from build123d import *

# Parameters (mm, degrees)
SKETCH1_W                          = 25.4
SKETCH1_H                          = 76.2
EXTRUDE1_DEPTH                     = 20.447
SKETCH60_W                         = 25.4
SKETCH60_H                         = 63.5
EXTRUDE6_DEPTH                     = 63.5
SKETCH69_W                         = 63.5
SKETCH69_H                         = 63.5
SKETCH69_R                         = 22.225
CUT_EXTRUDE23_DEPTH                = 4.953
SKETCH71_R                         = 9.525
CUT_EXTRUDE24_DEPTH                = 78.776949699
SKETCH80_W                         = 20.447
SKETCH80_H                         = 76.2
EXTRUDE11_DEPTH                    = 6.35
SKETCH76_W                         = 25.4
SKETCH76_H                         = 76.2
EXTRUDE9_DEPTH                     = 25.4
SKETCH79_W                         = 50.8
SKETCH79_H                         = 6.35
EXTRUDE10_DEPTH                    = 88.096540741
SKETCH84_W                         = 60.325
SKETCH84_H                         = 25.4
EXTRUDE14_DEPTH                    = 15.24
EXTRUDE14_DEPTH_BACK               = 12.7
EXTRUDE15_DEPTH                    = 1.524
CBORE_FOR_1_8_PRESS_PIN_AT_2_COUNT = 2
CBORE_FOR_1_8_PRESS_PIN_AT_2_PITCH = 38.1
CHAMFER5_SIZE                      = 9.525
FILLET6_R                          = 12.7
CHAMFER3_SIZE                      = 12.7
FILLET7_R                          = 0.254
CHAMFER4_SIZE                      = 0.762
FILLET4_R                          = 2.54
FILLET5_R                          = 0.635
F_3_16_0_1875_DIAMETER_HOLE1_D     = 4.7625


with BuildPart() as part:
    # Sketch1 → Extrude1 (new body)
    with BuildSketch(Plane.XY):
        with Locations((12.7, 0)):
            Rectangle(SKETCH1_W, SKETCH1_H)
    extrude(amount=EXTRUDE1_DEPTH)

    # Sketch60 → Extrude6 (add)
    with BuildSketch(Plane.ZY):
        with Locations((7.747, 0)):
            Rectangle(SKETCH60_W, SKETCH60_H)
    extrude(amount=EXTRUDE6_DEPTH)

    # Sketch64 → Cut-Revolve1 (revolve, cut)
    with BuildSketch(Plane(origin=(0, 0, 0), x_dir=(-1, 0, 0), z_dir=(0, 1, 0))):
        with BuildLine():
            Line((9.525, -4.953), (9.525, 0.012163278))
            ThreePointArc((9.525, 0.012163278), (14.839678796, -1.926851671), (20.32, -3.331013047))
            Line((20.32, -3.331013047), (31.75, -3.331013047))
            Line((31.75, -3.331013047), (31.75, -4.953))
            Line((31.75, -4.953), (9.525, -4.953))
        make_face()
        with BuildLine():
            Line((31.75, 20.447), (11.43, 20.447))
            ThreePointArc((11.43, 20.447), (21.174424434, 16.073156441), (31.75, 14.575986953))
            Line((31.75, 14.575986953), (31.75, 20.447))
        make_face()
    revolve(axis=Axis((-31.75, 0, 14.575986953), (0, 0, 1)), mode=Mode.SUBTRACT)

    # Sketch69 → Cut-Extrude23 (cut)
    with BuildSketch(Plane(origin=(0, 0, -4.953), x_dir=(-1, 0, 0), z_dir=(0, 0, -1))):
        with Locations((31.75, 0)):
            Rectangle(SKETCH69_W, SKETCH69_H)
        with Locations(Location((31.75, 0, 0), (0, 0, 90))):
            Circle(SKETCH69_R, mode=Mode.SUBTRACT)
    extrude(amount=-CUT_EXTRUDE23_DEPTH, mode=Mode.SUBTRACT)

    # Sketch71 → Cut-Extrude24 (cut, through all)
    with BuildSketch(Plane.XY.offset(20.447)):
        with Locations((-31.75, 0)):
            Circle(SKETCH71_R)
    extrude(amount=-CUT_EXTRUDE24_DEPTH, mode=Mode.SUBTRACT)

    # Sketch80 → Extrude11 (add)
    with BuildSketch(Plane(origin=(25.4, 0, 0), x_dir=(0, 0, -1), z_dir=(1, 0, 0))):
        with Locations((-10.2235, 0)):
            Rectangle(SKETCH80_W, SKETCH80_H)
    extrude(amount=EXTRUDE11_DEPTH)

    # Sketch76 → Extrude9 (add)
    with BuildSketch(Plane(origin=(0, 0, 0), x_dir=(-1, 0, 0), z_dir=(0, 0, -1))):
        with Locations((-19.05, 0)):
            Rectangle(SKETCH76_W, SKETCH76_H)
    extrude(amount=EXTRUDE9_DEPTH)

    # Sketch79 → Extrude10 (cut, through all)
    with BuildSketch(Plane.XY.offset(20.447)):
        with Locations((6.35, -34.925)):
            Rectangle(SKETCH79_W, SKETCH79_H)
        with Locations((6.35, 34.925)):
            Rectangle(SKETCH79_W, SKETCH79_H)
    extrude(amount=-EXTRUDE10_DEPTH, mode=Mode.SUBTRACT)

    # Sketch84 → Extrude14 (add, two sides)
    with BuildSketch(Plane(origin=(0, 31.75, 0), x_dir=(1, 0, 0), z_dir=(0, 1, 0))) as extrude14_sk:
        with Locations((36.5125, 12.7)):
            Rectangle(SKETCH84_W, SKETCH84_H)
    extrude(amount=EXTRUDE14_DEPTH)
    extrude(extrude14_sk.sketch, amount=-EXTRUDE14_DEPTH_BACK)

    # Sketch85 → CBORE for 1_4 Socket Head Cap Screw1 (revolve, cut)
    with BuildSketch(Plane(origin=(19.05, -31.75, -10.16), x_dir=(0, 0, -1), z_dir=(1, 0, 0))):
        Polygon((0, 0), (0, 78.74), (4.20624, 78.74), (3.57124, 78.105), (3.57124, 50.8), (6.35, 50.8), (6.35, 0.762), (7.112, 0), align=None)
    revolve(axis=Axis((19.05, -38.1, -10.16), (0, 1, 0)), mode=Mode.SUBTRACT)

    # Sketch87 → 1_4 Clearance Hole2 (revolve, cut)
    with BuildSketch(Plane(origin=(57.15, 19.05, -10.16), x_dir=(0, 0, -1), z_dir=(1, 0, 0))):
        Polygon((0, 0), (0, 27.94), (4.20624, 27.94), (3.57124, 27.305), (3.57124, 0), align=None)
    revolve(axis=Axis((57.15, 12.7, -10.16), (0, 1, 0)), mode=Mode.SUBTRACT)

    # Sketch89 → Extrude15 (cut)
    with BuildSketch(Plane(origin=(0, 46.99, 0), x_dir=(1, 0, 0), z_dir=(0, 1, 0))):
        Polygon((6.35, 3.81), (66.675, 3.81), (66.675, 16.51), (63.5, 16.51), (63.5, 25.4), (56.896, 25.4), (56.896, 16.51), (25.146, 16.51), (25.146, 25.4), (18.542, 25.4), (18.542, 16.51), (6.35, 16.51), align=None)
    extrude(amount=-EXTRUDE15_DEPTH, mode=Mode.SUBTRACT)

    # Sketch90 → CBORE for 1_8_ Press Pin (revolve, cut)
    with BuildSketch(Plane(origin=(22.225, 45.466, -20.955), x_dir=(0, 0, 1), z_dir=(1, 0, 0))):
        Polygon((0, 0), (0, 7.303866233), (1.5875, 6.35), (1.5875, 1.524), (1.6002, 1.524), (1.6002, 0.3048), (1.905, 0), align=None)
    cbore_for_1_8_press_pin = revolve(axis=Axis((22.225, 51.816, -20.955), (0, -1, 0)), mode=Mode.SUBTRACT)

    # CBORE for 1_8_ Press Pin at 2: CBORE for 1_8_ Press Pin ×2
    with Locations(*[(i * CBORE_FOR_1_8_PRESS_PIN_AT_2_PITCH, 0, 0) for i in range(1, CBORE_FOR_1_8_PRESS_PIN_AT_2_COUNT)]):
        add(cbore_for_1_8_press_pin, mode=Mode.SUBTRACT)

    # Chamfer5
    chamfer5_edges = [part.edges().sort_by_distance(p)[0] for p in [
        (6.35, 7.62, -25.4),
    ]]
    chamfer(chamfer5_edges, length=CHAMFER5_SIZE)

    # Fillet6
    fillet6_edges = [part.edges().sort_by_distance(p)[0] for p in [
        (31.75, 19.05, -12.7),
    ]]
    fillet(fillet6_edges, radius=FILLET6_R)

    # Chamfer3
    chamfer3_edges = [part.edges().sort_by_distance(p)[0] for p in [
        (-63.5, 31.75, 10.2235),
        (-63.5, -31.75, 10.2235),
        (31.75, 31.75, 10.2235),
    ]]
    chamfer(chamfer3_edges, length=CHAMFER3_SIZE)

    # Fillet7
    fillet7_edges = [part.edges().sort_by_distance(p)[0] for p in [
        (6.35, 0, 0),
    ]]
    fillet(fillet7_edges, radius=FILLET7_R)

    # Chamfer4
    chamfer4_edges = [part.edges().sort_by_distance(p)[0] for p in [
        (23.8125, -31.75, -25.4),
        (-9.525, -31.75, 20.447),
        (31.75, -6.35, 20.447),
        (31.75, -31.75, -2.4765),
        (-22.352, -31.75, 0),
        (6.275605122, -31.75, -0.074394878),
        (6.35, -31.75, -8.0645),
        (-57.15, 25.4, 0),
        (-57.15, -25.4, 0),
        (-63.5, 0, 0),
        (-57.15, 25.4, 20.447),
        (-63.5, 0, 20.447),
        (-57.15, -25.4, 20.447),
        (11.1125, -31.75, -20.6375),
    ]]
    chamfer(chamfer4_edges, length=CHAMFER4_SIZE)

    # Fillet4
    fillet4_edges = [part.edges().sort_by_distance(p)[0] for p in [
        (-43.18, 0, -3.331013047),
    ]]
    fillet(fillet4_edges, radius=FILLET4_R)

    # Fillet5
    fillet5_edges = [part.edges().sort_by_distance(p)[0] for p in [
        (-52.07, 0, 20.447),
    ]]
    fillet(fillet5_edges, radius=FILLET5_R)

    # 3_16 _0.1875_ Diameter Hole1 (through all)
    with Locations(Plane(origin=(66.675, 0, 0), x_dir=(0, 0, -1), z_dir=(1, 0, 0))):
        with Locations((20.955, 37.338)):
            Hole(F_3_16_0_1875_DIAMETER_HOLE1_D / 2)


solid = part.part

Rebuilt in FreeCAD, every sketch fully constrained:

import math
import FreeCAD as App
import Part
import Sketcher
from FreeCAD import Vector
Q = App.Units.Quantity


def edges_at(feature, points):
    """Names of the edges that pass closest to the given points."""
    edges = feature.Shape.Edges
    near = lambda p: min(range(len(edges)), key=lambda i: edges[i].distToShape(Part.Vertex(*p))[0])
    return sorted({f"Edge{near(p) + 1}" for p in points})


def add_polygon(sketch, points):
    """Adds a closed chain of lines whose ends are joined by coincident constraints."""
    first, n = sketch.GeometryCount, len(points)
    for a, b in zip(points, points[1:] + points[:1]):
        sketch.addGeometry(Part.LineSegment(App.Vector(*a, 0), App.Vector(*b, 0)), False)
    for i in range(n):
        sketch.addConstraint(Sketcher.Constraint("Coincident", first + i, 2, first + (i + 1) % n, 1))

doc = App.newDocument("Part")
body = doc.addObject("PartDesign::Body", "Body")

sketch1 = body.newObject("Sketcher::SketchObject", "Sketch")
sketch1.AttachmentSupport = (doc.getObject("XY_Plane"), [""])
sketch1.MapMode = "FlatFace"
add_polygon(sketch1, [(0, 38), (0, -38), (25, -38), (25, 38)])
sketch1.addConstraint([
    Sketcher.Constraint("Vertical", 0),
    Sketcher.Constraint("Horizontal", 1),
    Sketcher.Constraint("Vertical", 2),
    Sketcher.Constraint("Horizontal", 3),
    Sketcher.Constraint("Symmetric", 0, 2, 3, 2, -1, 1),
    Sketcher.Constraint("DistanceX", 1, 1, 1, 2, Q("1 in")),
    Sketcher.Constraint("DistanceY", 0, 2, 0, 1, Q("3 in")),
])
pad1 = body.newObject("PartDesign::Pad", "Pad")
pad1.Profile = sketch1
pad1.Length = Q("0.805 in")

sketch2 = body.newObject("Sketcher::SketchObject", "Sketch001")
sketch2.AttachmentSupport = (doc.getObject("YZ_Plane"), [""])
sketch2.MapMode = "FlatFace"
add_polygon(sketch2, [(32, -5), (-32, -5), (-32, 20), (32, 20)])
sketch2.addConstraint([
    Sketcher.Constraint("Horizontal", 0),
    Sketcher.Constraint("Vertical", 1),
    Sketcher.Constraint("Horizontal", 2),
    Sketcher.Constraint("Vertical", 3),
    Sketcher.Constraint("DistanceY", 1, 1, 1, 2, Q("1 in")),
    Sketcher.Constraint("DistanceX", 0, 2, 0, 1, Q("2.5 in")),
    Sketcher.Constraint("DistanceX", 0, 2, -1, 1, Q("1.25 in")),
    Sketcher.Constraint("DistanceY", 0, 2, -1, 1, Q("0.195 in")),
])
pad2 = body.newObject("PartDesign::Pad", "Pad001")
pad2.Profile = sketch2
pad2.Length = Q("2.5 in")
pad2.Reversed = True

sketch3 = body.newObject("Sketcher::SketchObject", "Sketch002")
sketch3.AttachmentSupport = (doc.getObject("XZ_Plane"), [""])
sketch3.MapMode = "FlatFace"
sketch3.addGeometry([
    Part.LineSegment(Vector(-9.5, 0, 0), Vector(-9.5, -5, 0)),
    Part.LineSegment(Vector(-9.5, -5, 0), Vector(-31.8, -5, 0)),
    Part.LineSegment(Vector(-31.8, -5, 0), Vector(-31.8, -3.3, 0)),
    Part.LineSegment(Vector(-31.8, -3.3, 0), Vector(-20.3, -3.3, 0)),
    Part.ArcOfCircle(Part.Circle(Vector(-31.8, 52.7, 0), Vector(0, 0, 1), 57.2), math.radians(-78.47), math.radians(-67.12)),
    Part.LineSegment(Vector(-31.8, 20.4, 0), Vector(-11.4, 20.4, 0)),
    Part.ArcOfCircle(Part.Circle(Vector(-31.7, 52.7, 0), Vector(0, 0, 1), 38.1), math.radians(-90), math.radians(-58)),
    Part.LineSegment(Vector(-31.8, 14.6, 0), Vector(-31.8, 20.4, 0)),
], False)
sketch3.addGeometry(Part.LineSegment(Vector(-31.8, -5, 0), Vector(-31.8, 52.7, 0)), True)
sketch3.addConstraint([
    Sketcher.Constraint("Coincident", 0, 2, 1, 1),
    Sketcher.Constraint("Coincident", 1, 2, 2, 1),
    Sketcher.Constraint("Coincident", 2, 2, 3, 1),
    Sketcher.Constraint("Coincident", 3, 2, 4, 1),
    Sketcher.Constraint("Coincident", 4, 2, 0, 1),
    Sketcher.Constraint("Coincident", 5, 2, 6, 2),
    Sketcher.Constraint("Coincident", 6, 1, 7, 1),
    Sketcher.Constraint("Coincident", 7, 2, 5, 1),
    Sketcher.Constraint("Vertical", 0),
    Sketcher.Constraint("Horizontal", 1),
    Sketcher.Constraint("Vertical", 2),
    Sketcher.Constraint("Horizontal", 3),
    Sketcher.Constraint("Horizontal", 5),
    Sketcher.Constraint("Vertical", 7),
    Sketcher.Constraint("Vertical", 8),
    Sketcher.Constraint("Coincident", 6, 3, 4, 3),
    Sketcher.Constraint("Coincident", 8, 1, 1, 2),
    Sketcher.Constraint("Coincident", 8, 2, 4, 3),
    Sketcher.Constraint("Vertical", 2, 2, 6, 1),
    Sketcher.Constraint("Radius", 6, Q("1.5 in")),
    Sketcher.Constraint("DistanceX", 5, 1, 5, 2, Q("0.8 in")),
    Sketcher.Constraint("DistanceY", 0, 2, 5, 2, Q("1 in")),
    Sketcher.Constraint("DistanceX", 3, 1, 3, 2, Q("0.45 in")),
    Sketcher.Constraint("DistanceX", 3, 2, -1, 1, Q("0.8 in")),
    Sketcher.Constraint("DistanceX", 1, 2, 1, 1, Q("0.875 in")),
    Sketcher.Constraint("DistanceY", 0, 2, -1, 1, Q("0.195 in")),
    Sketcher.Constraint("Radius", 4, Q("57.161429 mm")),
])
groove = body.newObject("PartDesign::Groove", "Groove")
groove.Profile = sketch3
groove.ReferenceAxis = (sketch3, ["Axis0"])
groove.Angle = 360

sketch4 = body.newObject("Sketcher::SketchObject", "Sketch003")
sketch4.AttachmentSupport = (doc.getObject("XY_Plane"), [""])
sketch4.MapMode = "FlatFace"
sketch4.AttachmentOffset = App.Placement(Vector(0, 0, -0.195 * 25.4), App.Rotation())
add_polygon(sketch4, [(0, 32), (0, -32), (-64, -32), (-64, 32)])
sketch4.addGeometry(Part.Circle(Vector(-32, 0, 0), Vector(0, 0, 1), 22), False)
sketch4.addConstraint([
    Sketcher.Constraint("Vertical", 0),
    Sketcher.Constraint("Horizontal", 1),
    Sketcher.Constraint("Vertical", 2),
    Sketcher.Constraint("Horizontal", 3),
    Sketcher.Constraint("Symmetric", 0, 2, 3, 2, -1, 1),
    Sketcher.Constraint("PointOnObject", 4, 3, -1),
    Sketcher.Constraint("Equal", 3, 0),
    Sketcher.Constraint("Diameter", 4, Q("1.75 in")),
    Sketcher.Constraint("DistanceX", 1, 2, 1, 1, Q("2.5 in")),
    Sketcher.Constraint("DistanceX", 4, 3, -1, 1, Q("1.25 in")),
])
pocket1 = body.newObject("PartDesign::Pocket", "Pocket")
pocket1.Profile = sketch4
pocket1.Length = Q("0.195 in")
pocket1.Reversed = True

sketch5 = body.newObject("Sketcher::SketchObject", "Sketch004")
sketch5.AttachmentSupport = (doc.getObject("XY_Plane"), [""])
sketch5.MapMode = "FlatFace"
sketch5.AttachmentOffset = App.Placement(Vector(0, 0, 0.805 * 25.4), App.Rotation())
sketch5.addGeometry(Part.Circle(Vector(-32, 0, 0), Vector(0, 0, 1), 10), False)
sketch5.addConstraint([
    Sketcher.Constraint("PointOnObject", 0, 3, -1),
    Sketcher.Constraint("Diameter", 0, Q("0.75 in")),
    Sketcher.Constraint("DistanceX", 0, 3, -1, 1, Q("1.25 in")),
])
pocket2 = body.newObject("PartDesign::Pocket", "Pocket001")
pocket2.Profile = sketch5
pocket2.Type = "ThroughAll"

sketch6 = body.newObject("Sketcher::SketchObject", "Sketch005")
sketch6.AttachmentSupport = (doc.getObject("YZ_Plane"), [""])
sketch6.MapMode = "FlatFace"
sketch6.AttachmentOffset = App.Placement(Vector(0, 0, 1 * 25.4), App.Rotation())
add_polygon(sketch6, [(38, 20), (-38, 20), (-38, 0), (38, 0)])
sketch6.addConstraint([
    Sketcher.Constraint("Horizontal", 0),
    Sketcher.Constraint("Vertical", 1),
    Sketcher.Constraint("Horizontal", 2),
    Sketcher.Constraint("Vertical", 3),
    Sketcher.Constraint("Symmetric", 1, 2, 2, 2, -1, 1),
    Sketcher.Constraint("DistanceX", 0, 2, 0, 1, Q("3 in")),
    Sketcher.Constraint("DistanceY", 1, 2, 1, 1, Q("0.805 in")),
])
pad3 = body.newObject("PartDesign::Pad", "Pad002")
pad3.Profile = sketch6
pad3.Length = Q("0.25 in")

sketch7 = body.newObject("Sketcher::SketchObject", "Sketch006")
sketch7.AttachmentSupport = (doc.getObject("XY_Plane"), [""])
sketch7.MapMode = "FlatFace"
add_polygon(sketch7, [(32, 38), (32, -38), (6, -38), (6, 38)])
sketch7.addConstraint([
    Sketcher.Constraint("Vertical", 0),
    Sketcher.Constraint("Horizontal", 1),
    Sketcher.Constraint("Vertical", 2),
    Sketcher.Constraint("Horizontal", 3),
    Sketcher.Constraint("DistanceX", 1, 2, 1, 1, Q("1 in")),
    Sketcher.Constraint("DistanceY", 0, 2, 0, 1, Q("3 in")),
    Sketcher.Constraint("DistanceY", 0, 2, -1, 1, Q("1.5 in")),
    Sketcher.Constraint("DistanceX", -1, 1, 0, 2, Q("1.25 in")),
])
pad4 = body.newObject("PartDesign::Pad", "Pad003")
pad4.Profile = sketch7
pad4.Length = Q("1 in")
pad4.Reversed = True

sketch8 = body.newObject("Sketcher::SketchObject", "Sketch007")
sketch8.AttachmentSupport = (doc.getObject("XY_Plane"), [""])
sketch8.MapMode = "FlatFace"
sketch8.AttachmentOffset = App.Placement(Vector(0, 0, 0.805 * 25.4), App.Rotation())
add_polygon(sketch8, [(-19, -32), (-19, -38), (32, -38), (32, -32)])
add_polygon(sketch8, [(-19, 38), (-19, 32), (32, 32), (32, 38)])
sketch8.addConstraint([
    Sketcher.Constraint("Vertical", 0),
    Sketcher.Constraint("Horizontal", 1),
    Sketcher.Constraint("Vertical", 2),
    Sketcher.Constraint("Horizontal", 3),
    Sketcher.Constraint("Vertical", 4),
    Sketcher.Constraint("Horizontal", 5),
    Sketcher.Constraint("Vertical", 6),
    Sketcher.Constraint("Horizontal", 7),
    Sketcher.Constraint("Symmetric", 3, 2, 4, 2, -1),
    Sketcher.Constraint("Symmetric", 1, 2, 6, 2, -1),
    Sketcher.Constraint("DistanceX", 1, 1, 1, 2, Q("2 in")),
    Sketcher.Constraint("DistanceY", 1, 2, 6, 2, Q("3 in")),
    Sketcher.Constraint("DistanceY", 0, 2, 0, 1, Q("0.25 in")),
    Sketcher.Constraint("DistanceX", 0, 2, -1, 1, Q("0.75 in")),
])
pocket3 = body.newObject("PartDesign::Pocket", "Pocket002")
pocket3.Profile = sketch8
pocket3.Type = "ThroughAll"

sketch9 = body.newObject("Sketcher::SketchObject", "Sketch008")
sketch9.AttachmentSupport = (doc.getObject("XZ_Plane"), [""])
sketch9.MapMode = "FlatFace"
sketch9.AttachmentOffset = App.Placement(Vector(0, 0, -1.25 * 25.4), App.Rotation())
add_polygon(sketch9, [(6, -25), (6, 0), (67, 0), (67, -25)])
sketch9.addConstraint([
    Sketcher.Constraint("Vertical", 0),
    Sketcher.Constraint("Horizontal", 1),
    Sketcher.Constraint("Vertical", 2),
    Sketcher.Constraint("Horizontal", 3),
    Sketcher.Constraint("PointOnObject", 0, 2, -1),
    Sketcher.Constraint("DistanceY", 0, 1, 0, 2, Q("1 in")),
    Sketcher.Constraint("DistanceX", 1, 1, 1, 2, Q("2.375 in")),
    Sketcher.Constraint("DistanceX", -1, 1, 0, 2, Q("0.25 in")),
])
pad5 = body.newObject("PartDesign::Pad", "Pad004")
pad5.Profile = sketch9
pad5.Type = "TwoLengths"
pad5.Length = Q("0.6 in")
pad5.Length2 = Q("0.5 in")
pad5.Reversed = True

sketch10 = body.newObject("Sketcher::SketchObject", "Sketch009")
sketch10.AttachmentSupport = (doc.getObject("YZ_Plane"), [""])
sketch10.MapMode = "FlatFace"
sketch10.AttachmentOffset = App.Placement(Vector(0, 0, 0.75 * 25.4), App.Rotation())
add_polygon(sketch10, [(47, -10.2), (-31.8, -10.2), (-31.8, -17.3), (-31, -16.5), (19.1, -16.5), (19.1, -13.7), (46.4, -13.7), (47, -14.4)])
sketch10.addGeometry(Part.LineSegment(Vector(-31.8, -10.2, 0), Vector(47, -10.2, 0)), True)
sketch10.addConstraint([
    Sketcher.Constraint("Horizontal", 0),
    Sketcher.Constraint("Vertical", 1),
    Sketcher.Constraint("Horizontal", 3),
    Sketcher.Constraint("Vertical", 4),
    Sketcher.Constraint("Horizontal", 5),
    Sketcher.Constraint("Vertical", 7),
    Sketcher.Constraint("Horizontal", 8),
    Sketcher.Constraint("Coincident", 8, 1, 0, 2),
    Sketcher.Constraint("Perpendicular", 2, 6),
    Sketcher.Constraint("Vertical", 6, 2, 8, 2),
    Sketcher.Constraint("DistanceX", 0, 2, 0, 1, Q("3.1 in")),
    Sketcher.Constraint("Angle", 2, Q("45 deg")),
    Sketcher.Constraint("DistanceX", 1, 2, 3, 2, Q("2 in")),
    Sketcher.Constraint("DistanceX", 3, 1, 3, 2, Q("1.97 in")),
    Sketcher.Constraint("DistanceY", 1, 2, 1, 1, Q("0.28 in")),
    Sketcher.Constraint("DistanceY", 0, 2, -1, 1, Q("0.4 in")),
    Sketcher.Constraint("DistanceX", 5, 1, 5, 2, Q("1.075 in")),
    Sketcher.Constraint("DistanceX", 0, 2, -1, 1, Q("1.25 in")),
    Sketcher.Constraint("DistanceY", 4, 1, 4, 2, Q("0.1094 in")),
])
groove2 = body.newObject("PartDesign::Groove", "Groove001")
groove2.Profile = sketch10
groove2.ReferenceAxis = (sketch10, ["Axis0"])
groove2.Angle = 360

sketch11 = body.newObject("Sketcher::SketchObject", "Sketch010")
sketch11.AttachmentSupport = (doc.getObject("YZ_Plane"), [""])
sketch11.MapMode = "FlatFace"
sketch11.AttachmentOffset = App.Placement(Vector(0, 0, 2.25 * 25.4), App.Rotation())
add_polygon(sketch11, [(47, -10.2), (19.1, -10.2), (19.1, -13.7), (46.4, -13.7), (47, -14.4)])
sketch11.addGeometry(Part.LineSegment(Vector(19.1, -10.2, 0), Vector(47, -10.2, 0)), True)
sketch11.addConstraint([
    Sketcher.Constraint("Horizontal", 0),
    Sketcher.Constraint("Vertical", 1),
    Sketcher.Constraint("Horizontal", 2),
    Sketcher.Constraint("Vertical", 4),
    Sketcher.Constraint("Horizontal", 5),
    Sketcher.Constraint("Coincident", 5, 1, 0, 2),
    Sketcher.Constraint("Vertical", 3, 2, 5, 2),
    Sketcher.Constraint("DistanceX", 0, 2, 0, 1, Q("1.1 in")),
    Sketcher.Constraint("Angle", 3, Q("-45 deg")),
    Sketcher.Constraint("DistanceY", 0, 2, -1, 1, Q("0.4 in")),
    Sketcher.Constraint("DistanceX", 2, 1, 2, 2, Q("1.075 in")),
    Sketcher.Constraint("DistanceX", -1, 1, 0, 2, Q("0.75 in")),
    Sketcher.Constraint("DistanceY", 1, 2, 1, 1, Q("0.1406 in")),
])
groove3 = body.newObject("PartDesign::Groove", "Groove002")
groove3.Profile = sketch11
groove3.ReferenceAxis = (sketch11, ["Axis0"])
groove3.Angle = 360

sketch12 = body.newObject("Sketcher::SketchObject", "Sketch011")
sketch12.AttachmentSupport = (doc.getObject("XZ_Plane"), [""])
sketch12.MapMode = "FlatFace"
sketch12.AttachmentOffset = App.Placement(Vector(0, 0, -1.85 * 25.4), App.Rotation())
add_polygon(sketch12, [(6.3, -3.8), (66.7, -3.8), (66.7, -16.5), (63.5, -16.5), (63.5, -25.4), (56.9, -25.4), (56.9, -16.5), (25.1, -16.5), (25.1, -25.4), (18.5, -25.4), (18.5, -16.5), (6.3, -16.5)])
sketch12.addConstraint([
    Sketcher.Constraint("Horizontal", 0),
    Sketcher.Constraint("Vertical", 1),
    Sketcher.Constraint("Horizontal", 2),
    Sketcher.Constraint("Vertical", 3),
    Sketcher.Constraint("Horizontal", 4),
    Sketcher.Constraint("Vertical", 5),
    Sketcher.Constraint("Horizontal", 6),
    Sketcher.Constraint("Vertical", 7),
    Sketcher.Constraint("Horizontal", 8),
    Sketcher.Constraint("Vertical", 9),
    Sketcher.Constraint("Horizontal", 10),
    Sketcher.Constraint("Vertical", 11),
    Sketcher.Constraint("Horizontal", 2, 2, 5, 2),
    Sketcher.Constraint("Horizontal", 4, 2, 7, 2),
    Sketcher.Constraint("Horizontal", 6, 2, 9, 2),
    Sketcher.Constraint("Equal", 4, 8),
    Sketcher.Constraint("DistanceY", 1, 2, 1, 1, Q("0.5 in")),
    Sketcher.Constraint("DistanceY", 3, 2, -1, 1, Q("1 in")),
    Sketcher.Constraint("DistanceX", 4, 2, 4, 1, Q("0.26 in")),
    Sketcher.Constraint("DistanceX", 6, 2, 6, 1, Q("1.25 in")),
    Sketcher.Constraint("DistanceX", 10, 2, 10, 1, Q("0.48 in")),
    Sketcher.Constraint("DistanceY", 3, 2, 3, 1, Q("0.35 in")),
    Sketcher.Constraint("DistanceX", -1, 1, 2, 2, Q("2.5 in")),
    Sketcher.Constraint("DistanceX", 0, 1, 0, 2, Q("2.375 in")),
])
pocket4 = body.newObject("PartDesign::Pocket", "Pocket003")
pocket4.Profile = sketch12
pocket4.Length = Q("0.06 in")
pocket4.Reversed = True

sketch13 = body.newObject("Sketcher::SketchObject", "Sketch012")
sketch13.AttachmentSupport = (doc.getObject("YZ_Plane"), [""])
sketch13.MapMode = "FlatFace"
sketch13.AttachmentOffset = App.Placement(Vector(0, 0, 0.875 * 25.4), App.Rotation())
add_polygon(sketch13, [(38.162, -20.955), (45.466, -20.955), (45.466, -19.05), (45.161, -19.355), (43.942, -19.355), (43.942, -19.367), (39.116, -19.367)])
sketch13.addGeometry(Part.LineSegment(Vector(45.466, -20.955, 0), Vector(38.162, -20.955, 0)), True)
sketch13.addConstraint([
    Sketcher.Constraint("Horizontal", 0),
    Sketcher.Constraint("Vertical", 1),
    Sketcher.Constraint("Horizontal", 3),
    Sketcher.Constraint("Vertical", 4),
    Sketcher.Constraint("Horizontal", 5),
    Sketcher.Constraint("Horizontal", 7),
    Sketcher.Constraint("Coincident", 7, 1, 0, 2),
    Sketcher.Constraint("Equal", 0, 7),
    Sketcher.Constraint("Angle", 2, Q("-135 deg")),
    Sketcher.Constraint("Angle", 6, Q("-121 deg")),
    Sketcher.Constraint("DistanceX", 5, 2, 5, 1, Q("0.19 in")),
    Sketcher.Constraint("DistanceX", 3, 2, 3, 1, Q("0.048 in")),
    Sketcher.Constraint("DistanceY", 1, 1, 1, 2, Q("0.075 in")),
    Sketcher.Constraint("DistanceX", -1, 1, 0, 2, Q("1.79 in")),
    Sketcher.Constraint("DistanceY", 1, 2, -1, 1, Q("0.75 in")),
    Sketcher.Constraint("DistanceX", -1, 1, 3, 2, Q("1.73 in")),
    Sketcher.Constraint("DistanceY", 4, 2, 4, 1, Q("0.0005 in")),
])
groove4 = body.newObject("PartDesign::Groove", "Groove003")
groove4.Profile = sketch13
groove4.ReferenceAxis = (sketch13, ["Axis0"])
groove4.Angle = 360
doc.recompute()

linearpattern = body.newObject("PartDesign::LinearPattern", "LinearPattern")
linearpattern.Originals = [groove4]
linearpattern.Direction = (doc.getObject("X_Axis"), [""])
linearpattern.Mode = "offset"
linearpattern.Offset = Q("1.5 in")
linearpattern.Occurrences = 2
body.Tip = linearpattern
doc.recompute()

chamfer = body.newObject("PartDesign::Chamfer", "Chamfer")
chamfer.Base = (linearpattern, edges_at(linearpattern, [(6.35, 7.62, -25.4)]))
chamfer.Size = Q("0.375 in")
doc.recompute()

fillet = body.newObject("PartDesign::Fillet", "Fillet")
fillet.Base = (chamfer, edges_at(chamfer, [(31.75, 19.05, -12.7)]))
fillet.Radius = Q("0.5 in")
doc.recompute()

chamfer2 = body.newObject("PartDesign::Chamfer", "Chamfer001")
chamfer2.Base = (fillet, edges_at(fillet, [(-63.5, 31.75, 10.223), (-63.5, -31.75, 10.223), (31.75, 31.75, 10.223)]))
chamfer2.Size = Q("0.5 in")
doc.recompute()

fillet2 = body.newObject("PartDesign::Fillet", "Fillet001")
fillet2.Base = (chamfer2, edges_at(chamfer2, [(6.35, 0, 0)]))
fillet2.Radius = Q("0.01 in")
doc.recompute()

chamfer3 = body.newObject("PartDesign::Chamfer", "Chamfer002")
chamfer3.Base = (fillet2, edges_at(fillet2, [
    (23.812, -31.75, -25.4),
    (-9.525, -31.75, 20.447),
    (31.75, -6.35, 20.447),
    (31.75, -31.75, -2.477),
    (-22.352, -31.75, 0),
    (6.276, -31.75, -0.074),
    (6.35, -31.75, -8.065),
    (-57.15, 25.4, 0),
    (-57.15, -25.4, 0),
    (-63.5, 0, 0),
    (-57.15, 25.4, 20.447),
    (-63.5, 0, 20.447),
    (-57.15, -25.4, 20.447),
    (11.113, -31.75, -20.637),
]))
chamfer3.Size = Q("0.03 in")
doc.recompute()

fillet3 = body.newObject("PartDesign::Fillet", "Fillet002")
fillet3.Base = (chamfer3, edges_at(chamfer3, [(-43.18, 0, -3.331)]))
fillet3.Radius = Q("0.1 in")
doc.recompute()

fillet4 = body.newObject("PartDesign::Fillet", "Fillet003")
fillet4.Base = (fillet3, edges_at(fillet3, [(-52.07, 0, 20.447)]))
fillet4.Radius = Q("0.025 in")

sketch14 = body.newObject("Sketcher::SketchObject", "Sketch013")
sketch14.AttachmentSupport = (doc.getObject("YZ_Plane"), [""])
sketch14.MapMode = "FlatFace"
sketch14.AttachmentOffset = App.Placement(Vector(0, 0, 2.625 * 25.4), App.Rotation())
sketch14.addGeometry(Part.Circle(Vector(37.3, -21, 0), Vector(0, 0, 1), 2.4), False)
sketch14.addConstraint([
    Sketcher.Constraint("Diameter", 0, Q("0.1875 in")),
    Sketcher.Constraint("DistanceX", -1, 1, 0, 3, Q("1.47 in")),
    Sketcher.Constraint("DistanceY", 0, 3, -1, 1, Q("0.825 in")),
])
doc.recompute()
hole = body.newObject("PartDesign::Hole", "Hole")
hole.Profile = sketch14
hole.ThreadType = "None"
hole.Diameter = Q("0.1875 in")
hole.DepthType = "ThroughAll"

doc.recompute()
